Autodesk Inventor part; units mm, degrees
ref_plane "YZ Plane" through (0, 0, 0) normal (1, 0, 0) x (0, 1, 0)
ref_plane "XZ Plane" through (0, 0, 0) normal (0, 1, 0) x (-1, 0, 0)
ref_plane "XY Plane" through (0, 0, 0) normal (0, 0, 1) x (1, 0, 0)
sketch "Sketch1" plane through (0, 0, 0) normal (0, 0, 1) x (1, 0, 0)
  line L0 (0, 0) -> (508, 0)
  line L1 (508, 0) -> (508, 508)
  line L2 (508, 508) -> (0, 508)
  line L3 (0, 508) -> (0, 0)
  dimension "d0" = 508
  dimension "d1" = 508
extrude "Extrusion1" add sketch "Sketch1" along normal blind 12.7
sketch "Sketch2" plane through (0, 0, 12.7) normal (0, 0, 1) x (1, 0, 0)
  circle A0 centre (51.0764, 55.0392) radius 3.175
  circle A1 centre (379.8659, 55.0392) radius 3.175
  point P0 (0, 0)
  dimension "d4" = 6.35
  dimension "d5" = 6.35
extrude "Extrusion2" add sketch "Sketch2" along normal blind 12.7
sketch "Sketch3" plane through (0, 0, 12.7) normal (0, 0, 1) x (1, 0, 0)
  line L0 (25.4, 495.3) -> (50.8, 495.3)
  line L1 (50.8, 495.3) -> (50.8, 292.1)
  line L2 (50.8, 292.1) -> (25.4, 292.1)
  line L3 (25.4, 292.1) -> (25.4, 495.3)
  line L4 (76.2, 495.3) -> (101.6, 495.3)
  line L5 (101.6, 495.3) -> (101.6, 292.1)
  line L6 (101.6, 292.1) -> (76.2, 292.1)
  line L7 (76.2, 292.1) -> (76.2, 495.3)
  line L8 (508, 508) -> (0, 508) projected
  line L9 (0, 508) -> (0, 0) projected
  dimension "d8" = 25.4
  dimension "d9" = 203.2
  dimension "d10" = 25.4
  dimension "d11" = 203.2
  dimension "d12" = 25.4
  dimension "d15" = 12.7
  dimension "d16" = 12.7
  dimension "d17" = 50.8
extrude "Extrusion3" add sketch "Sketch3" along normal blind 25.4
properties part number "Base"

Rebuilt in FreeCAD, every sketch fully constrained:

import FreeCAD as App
import Part
import Sketcher
from FreeCAD import Vector
Q = App.Units.Quantity


def add_polygon(sketch, points):
    """Adds a closed chain of lines whose ends are joined by coincident constraints."""
    first, n = sketch.GeometryCount, len(points)
    for a, b in zip(points, points[1:] + points[:1]):
        sketch.addGeometry(Part.LineSegment(App.Vector(*a, 0), App.Vector(*b, 0)), False)
    for i in range(n):
        sketch.addConstraint(Sketcher.Constraint("Coincident", first + i, 2, first + (i + 1) % n, 1))

doc = App.newDocument("Part")
body = doc.addObject("PartDesign::Body", "Body")

# Sketch on XY plane
sketch1 = body.newObject("Sketcher::SketchObject", "Sketch")
sketch1.AttachmentSupport = (doc.getObject("XY_Plane"), [""])
sketch1.MapMode = "FlatFace"
add_polygon(sketch1, [(0, 508), (0, 0), (508, 0), (508, 508)])  # lines 0-3
sketch1.addConstraint(Sketcher.Constraint("Vertical", 0))
sketch1.addConstraint(Sketcher.Constraint("Horizontal", 1))
sketch1.addConstraint(Sketcher.Constraint("Vertical", 2))
sketch1.addConstraint(Sketcher.Constraint("Horizontal", 3))
sketch1.addConstraint(Sketcher.Constraint("Coincident", 0, 2, -1, 1))
sketch1.addConstraint(Sketcher.Constraint("Equal", 3, 0))
sketch1.addConstraint(Sketcher.Constraint("DistanceX", 1, 1, 1, 2, Q("20 in")))
pad1 = body.newObject("PartDesign::Pad", "Pad")
pad1.Profile = sketch1
pad1.Length = Q("0.5 in")

# Sketch on XY plane
sketch2 = body.newObject("Sketcher::SketchObject", "Sketch001")
sketch2.AttachmentSupport = (doc.getObject("XY_Plane"), [""])
sketch2.MapMode = "FlatFace"
sketch2.AttachmentOffset = App.Placement(Vector(0, 0, 0.5 * 25.4), App.Rotation())
sketch2.addGeometry(Part.Circle(Vector(51.0764, 55.0392, 0), Vector(0, 0, 1), 3.175), False)
sketch2.addGeometry(Part.Circle(Vector(379.8659, 55.0392, 0), Vector(0, 0, 1), 3.175), False)
sketch2.addConstraint(Sketcher.Constraint("Equal", 0, 1))
sketch2.addConstraint(Sketcher.Constraint("Horizontal", 0, 3, 1, 3))
sketch2.addConstraint(Sketcher.Constraint("Diameter", 0, Q("0.25 in")))
sketch2.addConstraint(Sketcher.Constraint("DistanceY", -1, 1, 0, 3, Q("2.1669 in")))
sketch2.addConstraint(Sketcher.Constraint("DistanceX", -1, 1, 0, 3, Q("51.0764 mm")))
sketch2.addConstraint(Sketcher.Constraint("DistanceX", -1, 1, 1, 3, Q("379.866 mm")))
pad2 = body.newObject("PartDesign::Pad", "Pad001")
pad2.Profile = sketch2
pad2.Length = Q("0.5 in")

# Sketch on XY plane
sketch3 = body.newObject("Sketcher::SketchObject", "Sketch002")
sketch3.AttachmentSupport = (doc.getObject("XY_Plane"), [""])
sketch3.MapMode = "FlatFace"
sketch3.AttachmentOffset = App.Placement(Vector(0, 0, 0.5 * 25.4), App.Rotation())
add_polygon(sketch3, [(50.8, 495.3), (25.4, 495.3), (25.4, 292.1), (50.8, 292.1)])  # lines 0-3
add_polygon(sketch3, [(101.6, 495.3), (76.2, 495.3), (76.2, 292.1), (101.6, 292.1)])  # lines 4-7
sketch3.addConstraint(Sketcher.Constraint("Horizontal", 0))
sketch3.addConstraint(Sketcher.Constraint("Vertical", 1))
sketch3.addConstraint(Sketcher.Constraint("Horizontal", 2))
sketch3.addConstraint(Sketcher.Constraint("Vertical", 3))
sketch3.addConstraint(Sketcher.Constraint("Horizontal", 4))
sketch3.addConstraint(Sketcher.Constraint("Vertical", 5))
sketch3.addConstraint(Sketcher.Constraint("Horizontal", 6))
sketch3.addConstraint(Sketcher.Constraint("Vertical", 7))
sketch3.addConstraint(Sketcher.Constraint("Horizontal", 3, 2, 4, 2))
sketch3.addConstraint(Sketcher.Constraint("Horizontal", 2, 2, 5, 2))
sketch3.addConstraint(Sketcher.Constraint("Equal", 2, 4))
sketch3.addConstraint(Sketcher.Constraint("DistanceX", 0, 2, 0, 1, Q("1 in")))
sketch3.addConstraint(Sketcher.Constraint("DistanceY", 1, 2, 1, 1, Q("8 in")))
sketch3.addConstraint(Sketcher.Constraint("DistanceX", -1, 1, 0, 2, Q("1 in")))
sketch3.addConstraint(Sketcher.Constraint("DistanceX", 3, 2, 4, 2, Q("1 in")))
sketch3.addConstraint(Sketcher.Constraint("DistanceY", -1, 1, 0, 2, Q("19.5 in")))
pad3 = body.newObject("PartDesign::Pad", "Pad002")
pad3.Profile = sketch3
pad3.Length = Q("1 in")

doc.recompute()
